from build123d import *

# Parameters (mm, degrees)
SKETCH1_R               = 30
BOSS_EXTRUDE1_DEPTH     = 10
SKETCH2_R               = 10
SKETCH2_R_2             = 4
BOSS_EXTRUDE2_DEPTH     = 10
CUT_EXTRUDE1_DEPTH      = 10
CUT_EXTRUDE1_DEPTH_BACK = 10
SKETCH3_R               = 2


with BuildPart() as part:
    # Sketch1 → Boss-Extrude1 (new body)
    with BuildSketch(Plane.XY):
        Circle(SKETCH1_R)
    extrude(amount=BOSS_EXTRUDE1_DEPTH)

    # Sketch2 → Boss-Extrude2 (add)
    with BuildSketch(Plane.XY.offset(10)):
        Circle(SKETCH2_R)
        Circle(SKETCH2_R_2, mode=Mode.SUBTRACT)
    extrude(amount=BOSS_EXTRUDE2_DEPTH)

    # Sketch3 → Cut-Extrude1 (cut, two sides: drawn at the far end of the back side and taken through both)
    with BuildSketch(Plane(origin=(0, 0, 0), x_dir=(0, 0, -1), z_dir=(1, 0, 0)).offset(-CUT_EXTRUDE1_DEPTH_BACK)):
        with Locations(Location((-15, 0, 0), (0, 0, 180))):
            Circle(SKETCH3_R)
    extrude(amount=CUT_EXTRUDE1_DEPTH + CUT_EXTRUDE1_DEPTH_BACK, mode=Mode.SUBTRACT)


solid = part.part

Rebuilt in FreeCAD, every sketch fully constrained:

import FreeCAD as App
import Part
import Sketcher

V = App.Vector
Q = App.Units.Quantity

doc = App.newDocument("Part")
body = doc.addObject("PartDesign::Body", "Body")

# Sketch on XY plane
sketch1 = body.newObject("Sketcher::SketchObject", "Sketch")
sketch1.AttachmentSupport = (doc.getObject("XY_Plane"), [""])
sketch1.MapMode = "FlatFace"
sketch1.addGeometry(Part.Circle(V(0, 0, 0), V(0, 0, 1), 30), False)
sketch1.addConstraint([
    Sketcher.Constraint("Coincident", 0, 3, -1, 1),
    Sketcher.Constraint("Diameter", 0, Q("60 mm")),
])
pad1 = body.newObject("PartDesign::Pad", "Pad")
pad1.Profile = sketch1
pad1.Length = 10

# Sketch on XY plane
sketch2 = body.newObject("Sketcher::SketchObject", "Sketch001")
sketch2.AttachmentSupport = (doc.getObject("XY_Plane"), [""])
sketch2.MapMode = "FlatFace"
sketch2.AttachmentOffset = App.Placement(V(0, 0, 10), App.Rotation())
sketch2.addGeometry([
    Part.Circle(V(0, 0, 0), V(0, 0, 1), 10),
    Part.Circle(V(0, 0, 0), V(0, 0, 1), 4),
], False)
sketch2.addConstraint([
    Sketcher.Constraint("Coincident", 0, 3, -1, 1),
    Sketcher.Constraint("Coincident", 1, 3, -1, 1),
    Sketcher.Constraint("Diameter", 0, Q("20 mm")),
    Sketcher.Constraint("Diameter", 1, Q("8 mm")),
])
pad2 = body.newObject("PartDesign::Pad", "Pad001")
pad2.Profile = sketch2
pad2.Length = 10

# Sketch on YZ plane
sketch3 = body.newObject("Sketcher::SketchObject", "Sketch002")
sketch3.AttachmentSupport = (doc.getObject("YZ_Plane"), [""])
sketch3.MapMode = "FlatFace"
sketch3.addGeometry(Part.Circle(V(0, 15, 0), V(0, 0, 1), 2), False)
sketch3.addConstraint([
    Sketcher.Constraint("PointOnObject", 0, 3, -2),
    Sketcher.Constraint("Diameter", 0, Q("4 mm")),
    Sketcher.Constraint("DistanceY", -1, 1, 0, 3, Q("15 mm")),
])
pocket1 = body.newObject("PartDesign::Pocket", "Pocket")
pocket1.Profile = sketch3
pocket1.Type = "ThroughAll"
pocket1.Midplane = True

doc.recompute()
